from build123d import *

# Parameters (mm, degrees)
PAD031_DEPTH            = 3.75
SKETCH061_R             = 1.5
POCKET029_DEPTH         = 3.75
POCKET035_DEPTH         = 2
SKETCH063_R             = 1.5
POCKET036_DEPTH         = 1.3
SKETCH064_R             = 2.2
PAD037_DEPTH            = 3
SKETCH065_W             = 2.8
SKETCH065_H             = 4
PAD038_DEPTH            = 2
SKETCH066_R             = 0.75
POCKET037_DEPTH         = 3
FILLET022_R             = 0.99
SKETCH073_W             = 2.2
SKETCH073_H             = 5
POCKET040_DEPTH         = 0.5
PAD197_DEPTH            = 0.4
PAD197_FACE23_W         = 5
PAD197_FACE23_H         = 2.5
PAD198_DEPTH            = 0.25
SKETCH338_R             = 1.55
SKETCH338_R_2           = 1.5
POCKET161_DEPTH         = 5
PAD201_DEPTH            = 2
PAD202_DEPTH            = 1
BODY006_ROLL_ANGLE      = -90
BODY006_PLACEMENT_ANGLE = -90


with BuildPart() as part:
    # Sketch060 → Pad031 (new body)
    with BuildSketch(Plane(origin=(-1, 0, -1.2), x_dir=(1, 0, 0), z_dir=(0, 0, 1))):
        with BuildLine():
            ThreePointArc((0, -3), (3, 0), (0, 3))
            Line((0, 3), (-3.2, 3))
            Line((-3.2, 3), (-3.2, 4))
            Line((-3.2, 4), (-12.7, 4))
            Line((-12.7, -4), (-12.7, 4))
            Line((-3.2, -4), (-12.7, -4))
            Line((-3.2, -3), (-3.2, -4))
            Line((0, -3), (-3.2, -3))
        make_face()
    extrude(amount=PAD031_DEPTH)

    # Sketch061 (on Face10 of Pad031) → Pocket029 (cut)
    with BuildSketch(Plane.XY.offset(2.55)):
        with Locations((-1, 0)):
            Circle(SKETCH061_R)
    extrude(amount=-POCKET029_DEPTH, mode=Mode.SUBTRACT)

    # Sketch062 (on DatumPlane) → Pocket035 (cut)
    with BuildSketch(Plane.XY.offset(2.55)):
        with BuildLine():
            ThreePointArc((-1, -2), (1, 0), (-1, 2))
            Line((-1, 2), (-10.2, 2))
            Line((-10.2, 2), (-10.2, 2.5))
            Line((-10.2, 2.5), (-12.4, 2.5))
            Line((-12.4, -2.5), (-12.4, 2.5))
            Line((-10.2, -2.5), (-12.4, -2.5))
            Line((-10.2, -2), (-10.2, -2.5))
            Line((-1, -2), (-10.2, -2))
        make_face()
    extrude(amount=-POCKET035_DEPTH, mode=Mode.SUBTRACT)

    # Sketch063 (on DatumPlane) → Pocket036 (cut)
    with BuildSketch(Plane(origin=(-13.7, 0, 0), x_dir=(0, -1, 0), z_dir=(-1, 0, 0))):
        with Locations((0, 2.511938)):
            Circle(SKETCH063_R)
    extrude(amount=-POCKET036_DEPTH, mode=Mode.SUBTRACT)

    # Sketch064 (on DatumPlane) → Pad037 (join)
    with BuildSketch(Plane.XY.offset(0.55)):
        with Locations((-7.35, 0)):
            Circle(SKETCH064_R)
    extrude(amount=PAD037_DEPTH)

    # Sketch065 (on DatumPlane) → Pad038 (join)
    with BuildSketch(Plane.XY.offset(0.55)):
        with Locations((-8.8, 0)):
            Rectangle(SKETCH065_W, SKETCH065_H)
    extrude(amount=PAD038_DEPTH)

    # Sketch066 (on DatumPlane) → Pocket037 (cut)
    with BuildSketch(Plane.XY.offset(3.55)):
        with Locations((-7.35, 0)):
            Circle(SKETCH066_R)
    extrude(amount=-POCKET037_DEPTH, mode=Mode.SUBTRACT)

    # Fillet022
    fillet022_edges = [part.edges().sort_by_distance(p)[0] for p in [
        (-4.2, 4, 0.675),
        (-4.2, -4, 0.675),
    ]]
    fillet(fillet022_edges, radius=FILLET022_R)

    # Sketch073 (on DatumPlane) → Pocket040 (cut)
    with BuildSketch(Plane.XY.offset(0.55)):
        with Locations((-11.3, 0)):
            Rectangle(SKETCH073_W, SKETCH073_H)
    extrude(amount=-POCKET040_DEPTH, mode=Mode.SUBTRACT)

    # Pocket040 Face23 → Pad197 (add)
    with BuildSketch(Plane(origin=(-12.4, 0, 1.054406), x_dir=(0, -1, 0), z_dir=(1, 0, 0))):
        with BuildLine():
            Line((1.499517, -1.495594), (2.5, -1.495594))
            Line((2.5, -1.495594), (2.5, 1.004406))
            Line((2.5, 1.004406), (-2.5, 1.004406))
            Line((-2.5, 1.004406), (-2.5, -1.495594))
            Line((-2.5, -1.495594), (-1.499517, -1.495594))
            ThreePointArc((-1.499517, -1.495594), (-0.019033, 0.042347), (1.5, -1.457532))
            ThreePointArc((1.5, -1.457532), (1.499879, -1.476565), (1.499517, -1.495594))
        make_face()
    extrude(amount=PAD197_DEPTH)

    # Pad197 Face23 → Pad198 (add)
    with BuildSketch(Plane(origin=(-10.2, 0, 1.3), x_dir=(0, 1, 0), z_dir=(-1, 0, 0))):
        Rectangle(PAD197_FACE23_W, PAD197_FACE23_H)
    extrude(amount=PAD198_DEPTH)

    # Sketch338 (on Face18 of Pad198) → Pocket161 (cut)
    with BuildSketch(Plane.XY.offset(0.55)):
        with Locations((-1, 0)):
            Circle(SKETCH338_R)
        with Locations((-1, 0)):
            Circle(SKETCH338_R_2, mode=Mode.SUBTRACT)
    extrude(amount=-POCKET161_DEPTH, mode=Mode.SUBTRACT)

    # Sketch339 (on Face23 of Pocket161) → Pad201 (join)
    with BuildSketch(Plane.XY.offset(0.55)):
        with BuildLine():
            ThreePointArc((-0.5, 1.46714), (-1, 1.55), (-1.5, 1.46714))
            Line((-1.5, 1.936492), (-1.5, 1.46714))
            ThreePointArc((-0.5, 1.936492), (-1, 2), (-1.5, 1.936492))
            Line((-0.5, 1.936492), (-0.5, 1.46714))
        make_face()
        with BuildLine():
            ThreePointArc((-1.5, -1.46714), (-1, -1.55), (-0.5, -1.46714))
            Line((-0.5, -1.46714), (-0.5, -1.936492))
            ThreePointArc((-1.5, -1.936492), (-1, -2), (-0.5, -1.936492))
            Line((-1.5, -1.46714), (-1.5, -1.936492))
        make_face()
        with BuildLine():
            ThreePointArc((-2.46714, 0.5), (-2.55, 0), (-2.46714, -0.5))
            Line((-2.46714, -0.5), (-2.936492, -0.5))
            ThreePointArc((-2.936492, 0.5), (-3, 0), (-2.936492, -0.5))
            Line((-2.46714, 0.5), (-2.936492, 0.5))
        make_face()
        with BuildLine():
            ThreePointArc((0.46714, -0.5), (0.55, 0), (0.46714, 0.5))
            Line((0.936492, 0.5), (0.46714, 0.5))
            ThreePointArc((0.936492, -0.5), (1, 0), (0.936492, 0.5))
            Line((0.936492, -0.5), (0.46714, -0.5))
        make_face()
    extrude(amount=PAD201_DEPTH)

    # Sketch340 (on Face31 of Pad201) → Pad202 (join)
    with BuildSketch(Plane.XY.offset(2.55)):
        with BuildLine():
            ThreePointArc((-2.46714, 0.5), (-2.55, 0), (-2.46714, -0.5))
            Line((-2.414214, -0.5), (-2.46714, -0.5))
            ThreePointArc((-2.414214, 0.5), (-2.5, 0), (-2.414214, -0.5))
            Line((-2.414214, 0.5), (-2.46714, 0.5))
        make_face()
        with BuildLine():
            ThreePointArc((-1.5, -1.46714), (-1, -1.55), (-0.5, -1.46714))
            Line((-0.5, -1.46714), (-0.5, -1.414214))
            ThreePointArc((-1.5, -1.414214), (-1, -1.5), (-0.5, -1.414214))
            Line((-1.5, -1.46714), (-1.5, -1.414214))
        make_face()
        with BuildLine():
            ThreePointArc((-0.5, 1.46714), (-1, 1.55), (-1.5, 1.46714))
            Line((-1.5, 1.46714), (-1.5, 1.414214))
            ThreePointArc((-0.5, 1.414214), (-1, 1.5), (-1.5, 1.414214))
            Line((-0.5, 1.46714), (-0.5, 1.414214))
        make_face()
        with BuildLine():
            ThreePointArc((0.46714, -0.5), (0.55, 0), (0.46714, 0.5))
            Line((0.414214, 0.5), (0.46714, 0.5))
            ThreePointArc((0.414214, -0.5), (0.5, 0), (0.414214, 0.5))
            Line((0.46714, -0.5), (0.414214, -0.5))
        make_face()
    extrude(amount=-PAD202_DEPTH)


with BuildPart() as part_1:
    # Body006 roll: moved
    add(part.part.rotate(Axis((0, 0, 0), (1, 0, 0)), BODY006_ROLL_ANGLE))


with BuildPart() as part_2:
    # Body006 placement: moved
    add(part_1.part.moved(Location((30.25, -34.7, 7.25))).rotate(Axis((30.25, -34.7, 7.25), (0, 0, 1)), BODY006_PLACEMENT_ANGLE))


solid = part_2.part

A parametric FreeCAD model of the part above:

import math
import FreeCAD as App
import Part
import Sketcher

V = App.Vector


def edges_at(feature, points):
    """Names of the edges that pass closest to the given points."""
    edges = feature.Shape.Edges
    near = lambda p: min(range(len(edges)), key=lambda i: edges[i].distToShape(Part.Vertex(*p))[0])
    return sorted({f"Edge{near(p) + 1}" for p in points})


def add_polygon(sketch, points):
    """Adds a closed chain of lines whose ends are joined by coincident constraints."""
    first, n = sketch.GeometryCount, len(points)
    for a, b in zip(points, points[1:] + points[:1]):
        sketch.addGeometry(Part.LineSegment(App.Vector(*a, 0), App.Vector(*b, 0)), False)
    for i in range(n):
        sketch.addConstraint(Sketcher.Constraint("Coincident", first + i, 2, first + (i + 1) % n, 1))

doc = App.newDocument("Part")
body = doc.addObject("PartDesign::Body", "Body")

# Sketch on XY plane
sketch1 = body.newObject("Sketcher::SketchObject", "Sketch")
sketch1.AttachmentSupport = (doc.getObject("XY_Plane"), [""])
sketch1.MapMode = "FlatFace"
sketch1.AttachmentOffset = App.Placement(V(0, 0, -1.2), App.Rotation())
sketch1.addGeometry([
    Part.ArcOfCircle(Part.Circle(V(-1, 0, 0), V(0, 0, 1), 3), math.radians(-90), math.radians(90)),  # 0
    Part.LineSegment(V(-1, 3, 0), V(-4.2, 3, 0)),  # 1
    Part.LineSegment(V(-4.2, 3, 0), V(-4.2, 4, 0)),  # 2
    Part.LineSegment(V(-4.2, 4, 0), V(-13.7, 4, 0)),  # 3
    Part.LineSegment(V(-13.7, 4, 0), V(-13.7, -4, 0)),  # 4
    Part.LineSegment(V(-13.7, -4, 0), V(-4.2, -4, 0)),  # 5
    Part.LineSegment(V(-4.2, -4, 0), V(-4.2, -3, 0)),  # 6
    Part.LineSegment(V(-4.2, -3, 0), V(-1, -3, 0)),  # 7
], False)
sketch1.addConstraint([
    Sketcher.Constraint("Tangent", 0, 2, 1, 1),
    Sketcher.Constraint("Coincident", 1, 2, 2, 1),
    Sketcher.Constraint("Coincident", 2, 2, 3, 1),
    Sketcher.Constraint("Coincident", 3, 2, 4, 1),
    Sketcher.Constraint("Coincident", 4, 2, 5, 1),
    Sketcher.Constraint("Coincident", 5, 2, 6, 1),
    Sketcher.Constraint("Coincident", 6, 2, 7, 1),
    Sketcher.Constraint("Tangent", 7, 2, 0, 1),
    Sketcher.Constraint("Horizontal", 1),
    Sketcher.Constraint("Vertical", 2),
    Sketcher.Constraint("Horizontal", 3),
    Sketcher.Constraint("Vertical", 4),
    Sketcher.Constraint("Horizontal", 5),
    Sketcher.Constraint("Vertical", 6),
    Sketcher.Constraint("Horizontal", 7),
    Sketcher.Constraint("Symmetric", 2, 2, 5, 2, -1),
    Sketcher.Constraint("PointOnObject", 0, 3, -1),
    Sketcher.Constraint("Radius", 0, 3.0),
    Sketcher.Constraint("DistanceY", 2, 1, 2, 2, 1.0),
    Sketcher.Constraint("DistanceX", 1, 2, 1, 1, 3.2),
    Sketcher.Constraint("DistanceX", 3, 2, 3, 1, 9.5),
    Sketcher.Constraint("DistanceX", 0, 3, -1, 1, 1.0),
])
pad1 = body.newObject("PartDesign::Pad", "Pad")
pad1.Profile = sketch1
pad1.Length = 3.75

# Sketch on XY plane
sketch2 = body.newObject("Sketcher::SketchObject", "Sketch001")
sketch2.AttachmentSupport = (doc.getObject("XY_Plane"), [""])
sketch2.MapMode = "FlatFace"
sketch2.AttachmentOffset = App.Placement(V(0, 0, 2.55), App.Rotation())
sketch2.addGeometry(Part.Circle(V(-1, 0, 0), V(0, 0, 1), 1.5), False)
sketch2.addConstraint([
    Sketcher.Constraint("PointOnObject", 0, 3, -1),
    Sketcher.Constraint("Diameter", 0, 3.0),
    Sketcher.Constraint("DistanceX", 0, 3, -1, 1, 1.0),
])
pocket1 = body.newObject("PartDesign::Pocket", "Pocket")
pocket1.Profile = sketch2
pocket1.Length = 3.75

# Sketch on XY plane
sketch3 = body.newObject("Sketcher::SketchObject", "Sketch002")
sketch3.AttachmentSupport = (doc.getObject("XY_Plane"), [""])
sketch3.MapMode = "FlatFace"
sketch3.AttachmentOffset = App.Placement(V(0, 0, 2.55), App.Rotation())
sketch3.addGeometry([
    Part.ArcOfCircle(Part.Circle(V(-1, 0, 0), V(0, 0, 1), 2), math.radians(-90), math.radians(90)),  # 0
    Part.LineSegment(V(-1, 2, 0), V(-10.2, 2, 0)),  # 1
    Part.LineSegment(V(-10.2, 2, 0), V(-10.2, 2.5, 0)),  # 2
    Part.LineSegment(V(-10.2, 2.5, 0), V(-12.4, 2.5, 0)),  # 3
    Part.LineSegment(V(-12.4, 2.5, 0), V(-12.4, -2.5, 0)),  # 4
    Part.LineSegment(V(-12.4, -2.5, 0), V(-10.2, -2.5, 0)),  # 5
    Part.LineSegment(V(-10.2, -2.5, 0), V(-10.2, -2, 0)),  # 6
    Part.LineSegment(V(-10.2, -2, 0), V(-1, -2, 0)),  # 7
], False)
sketch3.addConstraint([
    Sketcher.Constraint("Tangent", 0, 2, 1, 1),
    Sketcher.Constraint("Coincident", 1, 2, 2, 1),
    Sketcher.Constraint("Coincident", 2, 2, 3, 1),
    Sketcher.Constraint("Coincident", 3, 2, 4, 1),
    Sketcher.Constraint("Coincident", 4, 2, 5, 1),
    Sketcher.Constraint("Coincident", 5, 2, 6, 1),
    Sketcher.Constraint("Coincident", 6, 2, 7, 1),
    Sketcher.Constraint("Tangent", 7, 2, 0, 1),
    Sketcher.Constraint("Horizontal", 1),
    Sketcher.Constraint("Vertical", 2),
    Sketcher.Constraint("Horizontal", 3),
    Sketcher.Constraint("Vertical", 4),
    Sketcher.Constraint("Horizontal", 5),
    Sketcher.Constraint("Vertical", 6),
    Sketcher.Constraint("Horizontal", 7),
    Sketcher.Constraint("Symmetric", 2, 2, 5, 2, -1),
    Sketcher.Constraint("PointOnObject", 0, 3, -1),
    Sketcher.Constraint("Radius", 0, 2.0),
    Sketcher.Constraint("DistanceY", 4, 2, 4, 1, 5.0),
    Sketcher.Constraint("DistanceX", 1, 2, 1, 1, 9.2),
    Sketcher.Constraint("DistanceX", 3, 2, 3, 1, 2.2),
    Sketcher.Constraint("DistanceX", 0, 3, -1, 1, 1.0),
])
pocket2 = body.newObject("PartDesign::Pocket", "Pocket001")
pocket2.Profile = sketch3
pocket2.Length = 2

# Sketch on YZ plane
sketch4 = body.newObject("Sketcher::SketchObject", "Sketch003")
sketch4.AttachmentSupport = (doc.getObject("YZ_Plane"), [""])
sketch4.MapMode = "FlatFace"
sketch4.AttachmentOffset = App.Placement(V(0, 0, -13.7), App.Rotation())
sketch4.addGeometry(Part.Circle(V(0, 2.511938, 0), V(0, 0, 1), 1.5), False)
sketch4.addConstraint([
    Sketcher.Constraint("PointOnObject", 0, 3, -2),
    Sketcher.Constraint("Diameter", 0, 3.0),
    Sketcher.Constraint("DistanceY", -1, 1, 0, 3, 2.511938),
])
pocket3 = body.newObject("PartDesign::Pocket", "Pocket002")
pocket3.Profile = sketch4
pocket3.Length = 1.3
pocket3.Reversed = True

# Sketch on XY plane
sketch5 = body.newObject("Sketcher::SketchObject", "Sketch004")
sketch5.AttachmentSupport = (doc.getObject("XY_Plane"), [""])
sketch5.MapMode = "FlatFace"
sketch5.AttachmentOffset = App.Placement(V(0, 0, 0.55), App.Rotation())
sketch5.addGeometry(Part.Circle(V(-7.35, 0, 0), V(0, 0, 1), 2.2), False)
sketch5.addConstraint([
    Sketcher.Constraint("PointOnObject", 0, 3, -1),
    Sketcher.Constraint("Diameter", 0, 4.4),
    Sketcher.Constraint("DistanceX", 0, 3, -1, 1, 7.35),
])
pad2 = body.newObject("PartDesign::Pad", "Pad001")
pad2.Profile = sketch5
pad2.Length = 3

# Sketch on XY plane
sketch6 = body.newObject("Sketcher::SketchObject", "Sketch005")
sketch6.AttachmentSupport = (doc.getObject("XY_Plane"), [""])
sketch6.MapMode = "FlatFace"
sketch6.AttachmentOffset = App.Placement(V(0, 0, 0.55), App.Rotation())
add_polygon(sketch6, [(-10.2, 2), (-10.2, -2), (-7.4, -2), (-7.4, 2)])  # lines 0-3
sketch6.addConstraint([
    Sketcher.Constraint("Vertical", 0),
    Sketcher.Constraint("Horizontal", 1),
    Sketcher.Constraint("Vertical", 2),
    Sketcher.Constraint("Horizontal", 3),
    Sketcher.Constraint("DistanceY", 0, 2, 0, 1, 4.0),
    Sketcher.Constraint("DistanceX", 1, 1, 1, 2, 2.8),
    Sketcher.Constraint("DistanceY", 0, 2, -1, 1, 2.0),
    Sketcher.Constraint("DistanceX", 0, 2, -1, 1, 10.2),
])
pad3 = body.newObject("PartDesign::Pad", "Pad002")
pad3.Profile = sketch6
pad3.Length = 2

# Sketch on XY plane
sketch7 = body.newObject("Sketcher::SketchObject", "Sketch006")
sketch7.AttachmentSupport = (doc.getObject("XY_Plane"), [""])
sketch7.MapMode = "FlatFace"
sketch7.AttachmentOffset = App.Placement(V(0, 0, 3.55), App.Rotation())
sketch7.addGeometry(Part.Circle(V(-7.35, 0, 0), V(0, 0, 1), 0.75), False)
sketch7.addConstraint([
    Sketcher.Constraint("PointOnObject", 0, 3, -1),
    Sketcher.Constraint("Diameter", 0, 1.5),
    Sketcher.Constraint("DistanceX", 0, 3, -1, 1, 7.35),
])
pocket4 = body.newObject("PartDesign::Pocket", "Pocket003")
pocket4.Profile = sketch7
pocket4.Length = 3
doc.recompute()

fillet = body.newObject("PartDesign::Fillet", "Fillet")
fillet.Base = (pocket4, edges_at(pocket4, [(-4.2, 4, 0.675), (-4.2, -4, 0.675)]))
fillet.Radius = 0.99

# Sketch on XY plane
sketch8 = body.newObject("Sketcher::SketchObject", "Sketch007")
sketch8.AttachmentSupport = (doc.getObject("XY_Plane"), [""])
sketch8.MapMode = "FlatFace"
sketch8.AttachmentOffset = App.Placement(V(0, 0, 0.55), App.Rotation())
add_polygon(sketch8, [(-12.4, 2.5), (-12.4, -2.5), (-10.2, -2.5), (-10.2, 2.5)])  # lines 0-3
sketch8.addConstraint([
    Sketcher.Constraint("Vertical", 0),
    Sketcher.Constraint("Horizontal", 1),
    Sketcher.Constraint("Vertical", 2),
    Sketcher.Constraint("Horizontal", 3),
    Sketcher.Constraint("DistanceY", 0, 2, 0, 1, 5.0),
    Sketcher.Constraint("DistanceX", 1, 1, 1, 2, 2.2),
    Sketcher.Constraint("DistanceX", 0, 2, -1, 1, 12.4),
    Sketcher.Constraint("DistanceY", 0, 2, -1, 1, 2.5),
])
pocket5 = body.newObject("PartDesign::Pocket", "Pocket004")
pocket5.Profile = sketch8
pocket5.Length = 0.5

# Sketch on YZ plane
sketch9 = body.newObject("Sketcher::SketchObject", "Sketch008")
sketch9.AttachmentSupport = (doc.getObject("YZ_Plane"), [""])
sketch9.MapMode = "FlatFace"
sketch9.AttachmentOffset = App.Placement(V(0, 0, -12.4), App.Rotation())
sketch9.addGeometry([
    Part.LineSegment(V(-1.499517, 2.55, 0), V(-2.5, 2.55, 0)),  # 0
    Part.LineSegment(V(-2.5, 2.55, 0), V(-2.5, 0.05, 0)),  # 1
    Part.LineSegment(V(-2.5, 0.05, 0), V(2.5, 0.05, 0)),  # 2
    Part.LineSegment(V(2.5, 0.05, 0), V(2.5, 2.55, 0)),  # 3
    Part.LineSegment(V(2.5, 2.55, 0), V(1.499517, 2.55, 0)),  # 4
    Part.ArcOfCircle(Part.Circle(V(0, 2.511938, 0), V(0, 0, 1), 1.5), math.radians(-179.999991), math.radians(1.454009)),  # 5
    Part.ArcOfCircle(Part.Circle(V(0.002924, 2.5119, 0), V(0, 0, 1), 1.502924), math.radians(178.547372), math.radians(179.99856)),  # 6
], False)
sketch9.addConstraint([
    Sketcher.Constraint("Coincident", 0, 2, 1, 1),
    Sketcher.Constraint("Coincident", 1, 2, 2, 1),
    Sketcher.Constraint("Coincident", 2, 2, 3, 1),
    Sketcher.Constraint("Coincident", 3, 2, 4, 1),
    Sketcher.Constraint("Coincident", 4, 2, 5, 2),
    Sketcher.Constraint("Coincident", 5, 1, 6, 2),
    Sketcher.Constraint("Coincident", 6, 1, 0, 1),
    Sketcher.Constraint("Horizontal", 0),
    Sketcher.Constraint("Vertical", 1),
    Sketcher.Constraint("Horizontal", 2),
    Sketcher.Constraint("Vertical", 3),
    Sketcher.Constraint("Horizontal", 4),
    Sketcher.Constraint("Symmetric", 0, 2, 3, 2, -2),
    Sketcher.Constraint("PointOnObject", 5, 3, -2),
    Sketcher.Constraint("Equal", 0, 4),
    Sketcher.Constraint("Radius", 5, 1.5),
    Sketcher.Constraint("DistanceX", 2, 1, 2, 2, 5.0),
    Sketcher.Constraint("DistanceY", 1, 2, 1, 1, 2.5),
    Sketcher.Constraint("DistanceY", -1, 1, 0, 2, 2.55),
    Sketcher.Constraint("Radius", 6, 1.502924),
    Sketcher.Constraint("DistanceY", -1, 1, 6, 3, 2.5119),
    Sketcher.Constraint("DistanceY", 5, 1, 6, 1, 0.038062),
])
pad4 = body.newObject("PartDesign::Pad", "Pad003")
pad4.Profile = sketch9
pad4.Length = 0.4

# Sketch on YZ plane
sketch10 = body.newObject("Sketcher::SketchObject", "Sketch009")
sketch10.AttachmentSupport = (doc.getObject("YZ_Plane"), [""])
sketch10.MapMode = "FlatFace"
sketch10.AttachmentOffset = App.Placement(V(0, 0, -10.2), App.Rotation())
add_polygon(sketch10, [(-2.5, 0.05), (-2.5, 2.55), (2.5, 2.55), (2.5, 0.05)])  # lines 0-3
sketch10.addConstraint([
    Sketcher.Constraint("Vertical", 0),
    Sketcher.Constraint("Horizontal", 1),
    Sketcher.Constraint("Vertical", 2),
    Sketcher.Constraint("Horizontal", 3),
    Sketcher.Constraint("DistanceX", 1, 1, 1, 2, 5.0),
    Sketcher.Constraint("DistanceY", 0, 1, 0, 2, 2.5),
    Sketcher.Constraint("DistanceX", 0, 2, -1, 1, 2.5),
    Sketcher.Constraint("DistanceY", -1, 1, 0, 2, 2.55),
])
pad5 = body.newObject("PartDesign::Pad", "Pad004")
pad5.Profile = sketch10
pad5.Length = 0.25
pad5.Reversed = True

# Sketch on XY plane
sketch11 = body.newObject("Sketcher::SketchObject", "Sketch010")
sketch11.AttachmentSupport = (doc.getObject("XY_Plane"), [""])
sketch11.MapMode = "FlatFace"
sketch11.AttachmentOffset = App.Placement(V(0, 0, 0.55), App.Rotation())
sketch11.addGeometry([
    Part.Circle(V(-1, 0, 0), V(0, 0, 1), 1.55),
    Part.Circle(V(-1, 0, 0), V(0, 0, 1), 1.5),
], False)
sketch11.addConstraint([
    Sketcher.Constraint("Coincident", 1, 3, 0, 3),
    Sketcher.Constraint("PointOnObject", 0, 3, -1),
    Sketcher.Constraint("Diameter", 1, 3.0),
    Sketcher.Constraint("Diameter", 0, 3.1),
    Sketcher.Constraint("DistanceX", 0, 3, -1, 1, 1.0),
])
pocket6 = body.newObject("PartDesign::Pocket", "Pocket005")
pocket6.Profile = sketch11
pocket6.Length = 5

# Sketch on XY plane
sketch12 = body.newObject("Sketcher::SketchObject", "Sketch011")
sketch12.AttachmentSupport = (doc.getObject("XY_Plane"), [""])
sketch12.MapMode = "FlatFace"
sketch12.AttachmentOffset = App.Placement(V(0, 0, 0.55), App.Rotation())
sketch12.addGeometry([
    Part.ArcOfCircle(Part.Circle(V(-1, 0.000001, 0), V(0, 0, 1), 1.549999), math.radians(71.18092), math.radians(108.81908)),  # 0
    Part.LineSegment(V(-0.5, 1.46714, 0), V(-0.5, 1.936492, 0)),  # 1
    Part.ArcOfCircle(Part.Circle(V(-1, -0.00001, 0), V(0, 0, 1), 2.00001), math.radians(75.522562), math.radians(104.477438)),  # 2
    Part.LineSegment(V(-1.5, 1.936492, 0), V(-1.5, 1.46714, 0)),  # 3
    Part.ArcOfCircle(Part.Circle(V(-1, -0.000001, 0), V(0, 0, 1), 1.549999), math.radians(-108.81908), math.radians(-71.18092)),  # 4
    Part.LineSegment(V(-1.5, -1.46714, 0), V(-1.5, -1.936492, 0)),  # 5
    Part.ArcOfCircle(Part.Circle(V(-1, 0.00001, 0), V(0, 0, 1), 2.00001), math.radians(-104.477438), math.radians(-75.522562)),  # 6
    Part.LineSegment(V(-0.5, -1.936492, 0), V(-0.5, -1.46714, 0)),  # 7
    Part.ArcOfCircle(Part.Circle(V(-1.000001, 0, 0), V(0, 0, 1), 1.549999), math.radians(161.18092), math.radians(198.81908)),  # 8
    Part.LineSegment(V(-2.46714, 0.5, 0), V(-2.936492, 0.5, 0)),  # 9
    Part.ArcOfCircle(Part.Circle(V(-0.99999, 0, 0), V(0, 0, 1), 2.00001), math.radians(165.522562), math.radians(194.477438)),  # 10
    Part.LineSegment(V(-2.936492, -0.5, 0), V(-2.46714, -0.5, 0)),  # 11
    Part.ArcOfCircle(Part.Circle(V(-0.999999, 0, 0), V(0, 0, 1), 1.549999), math.radians(-18.81908), math.radians(18.81908)),  # 12
    Part.LineSegment(V(0.46714, -0.5, 0), V(0.936492, -0.5, 0)),  # 13
    Part.ArcOfCircle(Part.Circle(V(-1.00001, 0, 0), V(0, 0, 1), 2.00001), math.radians(-14.477438), math.radians(14.477438)),  # 14
    Part.LineSegment(V(0.936492, 0.5, 0), V(0.46714, 0.5, 0)),  # 15
], False)
sketch12.addConstraint([
    Sketcher.Constraint("Coincident", 0, 1, 1, 1),
    Sketcher.Constraint("Coincident", 1, 2, 2, 1),
    Sketcher.Constraint("Coincident", 2, 2, 3, 1),
    Sketcher.Constraint("Coincident", 3, 2, 0, 2),
    Sketcher.Constraint("Coincident", 4, 1, 5, 1),
    Sketcher.Constraint("Coincident", 5, 2, 6, 1),
    Sketcher.Constraint("Coincident", 6, 2, 7, 1),
    Sketcher.Constraint("Coincident", 7, 2, 4, 2),
    Sketcher.Constraint("Coincident", 8, 1, 9, 1),
    Sketcher.Constraint("Coincident", 9, 2, 10, 1),
    Sketcher.Constraint("Coincident", 10, 2, 11, 1),
    Sketcher.Constraint("Coincident", 11, 2, 8, 2),
    Sketcher.Constraint("Coincident", 12, 1, 13, 1),
    Sketcher.Constraint("Coincident", 13, 2, 14, 1),
    Sketcher.Constraint("Coincident", 14, 2, 15, 1),
    Sketcher.Constraint("Coincident", 15, 2, 12, 2),
    Sketcher.Constraint("Vertical", 1),
    Sketcher.Constraint("Vertical", 3),
    Sketcher.Constraint("Vertical", 5),
    Sketcher.Constraint("Vertical", 7),
    Sketcher.Constraint("Horizontal", 9),
    Sketcher.Constraint("Horizontal", 11),
    Sketcher.Constraint("Horizontal", 13),
    Sketcher.Constraint("Horizontal", 15),
    Sketcher.Constraint("Coincident", 4, 3, 0, 3),
    Sketcher.Constraint("Coincident", 6, 3, 0, 3),
    Sketcher.Constraint("Coincident", 8, 3, 0, 3),
    Sketcher.Constraint("Coincident", 12, 3, 0, 3),
    Sketcher.Constraint("Coincident", 14, 3, 8, 3),
    Sketcher.Constraint("PointOnObject", 0, 3, -1),
    Sketcher.Constraint("PointOnObject", 10, 3, -1),
    Sketcher.Constraint("Radius", 0, 1.549999),
    Sketcher.Constraint("Radius", 4, 1.549999),
    Sketcher.Constraint("Radius", 8, 1.549999),
    Sketcher.Constraint("Radius", 12, 1.549999),
    Sketcher.Constraint("DistanceX", 0, 3, -1, 1, 1.0),
    Sketcher.Constraint("DistanceX", 2, 3, -1, 1, 1.0),
    Sketcher.Constraint("DistanceX", 2, 2, 1, 2, 1.0),
    Sketcher.Constraint("DistanceX", 5, 2, 6, 2, 1.0),
    Sketcher.Constraint("DistanceY", 10, 2, 9, 2, 1.0),
    Sketcher.Constraint("DistanceY", 13, 2, 14, 2, 1.0),
    Sketcher.Constraint("DistanceX", 0, 1, -1, 1, 0.5),
    Sketcher.Constraint("DistanceX", 4, 1, -1, 1, 1.5),
    Sketcher.Constraint("DistanceY", -1, 1, 8, 1, 0.5),
    Sketcher.Constraint("DistanceY", 12, 1, -1, 1, 0.5),
    Sketcher.Constraint("Radius", 2, 2.00001),
    Sketcher.Constraint("Radius", 6, 2.00001),
    Sketcher.Constraint("Radius", 10, 2.00001),
    Sketcher.Constraint("Radius", 14, 2.00001),
    Sketcher.Constraint("DistanceX", 9, 2, 9, 1, 0.469352),
    Sketcher.Constraint("DistanceY", 1, 1, 1, 2, 0.469352),
])
pad6 = body.newObject("PartDesign::Pad", "Pad005")
pad6.Profile = sketch12
pad6.Length = 2

# Sketch on XY plane
sketch13 = body.newObject("Sketcher::SketchObject", "Sketch012")
sketch13.AttachmentSupport = (doc.getObject("XY_Plane"), [""])
sketch13.MapMode = "FlatFace"
sketch13.AttachmentOffset = App.Placement(V(0, 0, 2.55), App.Rotation())
sketch13.addGeometry([
    Part.ArcOfCircle(Part.Circle(V(-1.000001, 0, 0), V(0, 0, 1), 1.549999), math.radians(161.18092), math.radians(198.81908)),  # 0
    Part.LineSegment(V(-2.46714, -0.5, 0), V(-2.414214, -0.5, 0)),  # 1
    Part.ArcOfCircle(Part.Circle(V(-0.999993, 0, 0), V(0, 0, 1), 1.500007), math.radians(160.528877), math.radians(199.471123)),  # 2
    Part.LineSegment(V(-2.414214, 0.5, 0), V(-2.46714, 0.5, 0)),  # 3
    Part.ArcOfCircle(Part.Circle(V(-1, -0.000001, 0), V(0, 0, 1), 1.549999), math.radians(-108.81908), math.radians(-71.18092)),  # 4
    Part.LineSegment(V(-0.5, -1.46714, 0), V(-0.5, -1.414214, 0)),  # 5
    Part.ArcOfCircle(Part.Circle(V(-1, 0.000007, 0), V(0, 0, 1), 1.500007), math.radians(-109.471123), math.radians(-70.528877)),  # 6
    Part.LineSegment(V(-1.5, -1.414214, 0), V(-1.5, -1.46714, 0)),  # 7
    Part.ArcOfCircle(Part.Circle(V(-1, 0.000001, 0), V(0, 0, 1), 1.549999), math.radians(71.18092), math.radians(108.81908)),  # 8
    Part.LineSegment(V(-1.5, 1.46714, 0), V(-1.5, 1.414214, 0)),  # 9
    Part.ArcOfCircle(Part.Circle(V(-1, -0.000007, 0), V(0, 0, 1), 1.500007), math.radians(70.528877), math.radians(109.471123)),  # 10
    Part.LineSegment(V(-0.5, 1.414214, 0), V(-0.5, 1.46714, 0)),  # 11
    Part.ArcOfCircle(Part.Circle(V(-0.999999, 0, 0), V(0, 0, 1), 1.549999), math.radians(-18.81908), math.radians(18.81908)),  # 12
    Part.LineSegment(V(0.46714, 0.5, 0), V(0.414214, 0.5, 0)),  # 13
    Part.ArcOfCircle(Part.Circle(V(-1.000007, 0, 0), V(0, 0, 1), 1.500007), math.radians(-19.471123), math.radians(19.471123)),  # 14
    Part.LineSegment(V(0.414214, -0.5, 0), V(0.46714, -0.5, 0)),  # 15
], False)
sketch13.addConstraint([
    Sketcher.Constraint("Coincident", 0, 2, 1, 1),
    Sketcher.Constraint("Coincident", 1, 2, 2, 2),
    Sketcher.Constraint("Coincident", 2, 1, 3, 1),
    Sketcher.Constraint("Coincident", 3, 2, 0, 1),
    Sketcher.Constraint("Coincident", 4, 2, 5, 1),
    Sketcher.Constraint("Coincident", 5, 2, 6, 2),
    Sketcher.Constraint("Coincident", 6, 1, 7, 1),
    Sketcher.Constraint("Coincident", 7, 2, 4, 1),
    Sketcher.Constraint("Coincident", 8, 2, 9, 1),
    Sketcher.Constraint("Coincident", 9, 2, 10, 2),
    Sketcher.Constraint("Coincident", 10, 1, 11, 1),
    Sketcher.Constraint("Coincident", 11, 2, 8, 1),
    Sketcher.Constraint("Coincident", 12, 2, 13, 1),
    Sketcher.Constraint("Coincident", 13, 2, 14, 2),
    Sketcher.Constraint("Coincident", 14, 1, 15, 1),
    Sketcher.Constraint("Coincident", 15, 2, 12, 1),
    Sketcher.Constraint("Horizontal", 1),
    Sketcher.Constraint("Horizontal", 3),
    Sketcher.Constraint("Vertical", 5),
    Sketcher.Constraint("Vertical", 7),
    Sketcher.Constraint("Vertical", 9),
    Sketcher.Constraint("Vertical", 11),
    Sketcher.Constraint("Horizontal", 13),
    Sketcher.Constraint("Horizontal", 15),
    Sketcher.Constraint("Coincident", 2, 3, 0, 3),
    Sketcher.Constraint("Coincident", 4, 3, 0, 3),
    Sketcher.Constraint("Coincident", 6, 3, 0, 3),
    Sketcher.Constraint("Coincident", 8, 3, 0, 3),
    Sketcher.Constraint("Coincident", 10, 3, 0, 3),
    Sketcher.Constraint("Coincident", 12, 3, 0, 3),
    Sketcher.Constraint("Coincident", 14, 3, 0, 3),
    Sketcher.Constraint("Equal", 0, 4),
    Sketcher.Constraint("Equal", 2, 6),
    Sketcher.Constraint("Equal", 4, 8),
    Sketcher.Constraint("Equal", 6, 10),
    Sketcher.Constraint("Equal", 8, 12),
    Sketcher.Constraint("Equal", 10, 14),
    Sketcher.Constraint("Symmetric", 1, 2, 2, 1, -1),
    Sketcher.Constraint("Horizontal", 5, 2, 6, 1),
    Sketcher.Constraint("Horizontal", 9, 2, 10, 1),
    Sketcher.Constraint("Horizontal", 3, 2, 12, 2),
    Sketcher.Constraint("Horizontal", 1, 2, 14, 1),
    Sketcher.Constraint("Vertical", 7, 2, 8, 2),
    Sketcher.Constraint("Equal", 15, 5),
    Sketcher.Constraint("Radius", 0, 1.549999),
    Sketcher.Constraint("DistanceX", 0, 3, -1, 1, 1.000001),
    Sketcher.Constraint("DistanceY", 1, 2, 2, 1, 1.0),
    Sketcher.Constraint("Radius", 2, 1.500007),
])
pad7 = body.newObject("PartDesign::Pad", "Pad006")
pad7.Profile = sketch13
pad7.Length = 1
pad7.Reversed = True
body2 = doc.addObject("PartDesign::Body", "Body001")
doc.recompute()

body.Placement = App.Placement(V(0, 0, 0), App.Rotation(V(1, 0, 0), 270))
boolean = body2.newObject("PartDesign::Boolean", "Boolean")
boolean.Type = "Fuse"
boolean.addObjects([body])
body3 = doc.addObject("PartDesign::Body", "Body002")
doc.recompute()

body2.Placement = App.Placement(V(30.25, -34.7, 7.25), App.Rotation(V(0, 0, 1), 270))
boolean2 = body3.newObject("PartDesign::Boolean", "Boolean001")
boolean2.Type = "Fuse"
boolean2.addObjects([body2])

doc.recompute()
